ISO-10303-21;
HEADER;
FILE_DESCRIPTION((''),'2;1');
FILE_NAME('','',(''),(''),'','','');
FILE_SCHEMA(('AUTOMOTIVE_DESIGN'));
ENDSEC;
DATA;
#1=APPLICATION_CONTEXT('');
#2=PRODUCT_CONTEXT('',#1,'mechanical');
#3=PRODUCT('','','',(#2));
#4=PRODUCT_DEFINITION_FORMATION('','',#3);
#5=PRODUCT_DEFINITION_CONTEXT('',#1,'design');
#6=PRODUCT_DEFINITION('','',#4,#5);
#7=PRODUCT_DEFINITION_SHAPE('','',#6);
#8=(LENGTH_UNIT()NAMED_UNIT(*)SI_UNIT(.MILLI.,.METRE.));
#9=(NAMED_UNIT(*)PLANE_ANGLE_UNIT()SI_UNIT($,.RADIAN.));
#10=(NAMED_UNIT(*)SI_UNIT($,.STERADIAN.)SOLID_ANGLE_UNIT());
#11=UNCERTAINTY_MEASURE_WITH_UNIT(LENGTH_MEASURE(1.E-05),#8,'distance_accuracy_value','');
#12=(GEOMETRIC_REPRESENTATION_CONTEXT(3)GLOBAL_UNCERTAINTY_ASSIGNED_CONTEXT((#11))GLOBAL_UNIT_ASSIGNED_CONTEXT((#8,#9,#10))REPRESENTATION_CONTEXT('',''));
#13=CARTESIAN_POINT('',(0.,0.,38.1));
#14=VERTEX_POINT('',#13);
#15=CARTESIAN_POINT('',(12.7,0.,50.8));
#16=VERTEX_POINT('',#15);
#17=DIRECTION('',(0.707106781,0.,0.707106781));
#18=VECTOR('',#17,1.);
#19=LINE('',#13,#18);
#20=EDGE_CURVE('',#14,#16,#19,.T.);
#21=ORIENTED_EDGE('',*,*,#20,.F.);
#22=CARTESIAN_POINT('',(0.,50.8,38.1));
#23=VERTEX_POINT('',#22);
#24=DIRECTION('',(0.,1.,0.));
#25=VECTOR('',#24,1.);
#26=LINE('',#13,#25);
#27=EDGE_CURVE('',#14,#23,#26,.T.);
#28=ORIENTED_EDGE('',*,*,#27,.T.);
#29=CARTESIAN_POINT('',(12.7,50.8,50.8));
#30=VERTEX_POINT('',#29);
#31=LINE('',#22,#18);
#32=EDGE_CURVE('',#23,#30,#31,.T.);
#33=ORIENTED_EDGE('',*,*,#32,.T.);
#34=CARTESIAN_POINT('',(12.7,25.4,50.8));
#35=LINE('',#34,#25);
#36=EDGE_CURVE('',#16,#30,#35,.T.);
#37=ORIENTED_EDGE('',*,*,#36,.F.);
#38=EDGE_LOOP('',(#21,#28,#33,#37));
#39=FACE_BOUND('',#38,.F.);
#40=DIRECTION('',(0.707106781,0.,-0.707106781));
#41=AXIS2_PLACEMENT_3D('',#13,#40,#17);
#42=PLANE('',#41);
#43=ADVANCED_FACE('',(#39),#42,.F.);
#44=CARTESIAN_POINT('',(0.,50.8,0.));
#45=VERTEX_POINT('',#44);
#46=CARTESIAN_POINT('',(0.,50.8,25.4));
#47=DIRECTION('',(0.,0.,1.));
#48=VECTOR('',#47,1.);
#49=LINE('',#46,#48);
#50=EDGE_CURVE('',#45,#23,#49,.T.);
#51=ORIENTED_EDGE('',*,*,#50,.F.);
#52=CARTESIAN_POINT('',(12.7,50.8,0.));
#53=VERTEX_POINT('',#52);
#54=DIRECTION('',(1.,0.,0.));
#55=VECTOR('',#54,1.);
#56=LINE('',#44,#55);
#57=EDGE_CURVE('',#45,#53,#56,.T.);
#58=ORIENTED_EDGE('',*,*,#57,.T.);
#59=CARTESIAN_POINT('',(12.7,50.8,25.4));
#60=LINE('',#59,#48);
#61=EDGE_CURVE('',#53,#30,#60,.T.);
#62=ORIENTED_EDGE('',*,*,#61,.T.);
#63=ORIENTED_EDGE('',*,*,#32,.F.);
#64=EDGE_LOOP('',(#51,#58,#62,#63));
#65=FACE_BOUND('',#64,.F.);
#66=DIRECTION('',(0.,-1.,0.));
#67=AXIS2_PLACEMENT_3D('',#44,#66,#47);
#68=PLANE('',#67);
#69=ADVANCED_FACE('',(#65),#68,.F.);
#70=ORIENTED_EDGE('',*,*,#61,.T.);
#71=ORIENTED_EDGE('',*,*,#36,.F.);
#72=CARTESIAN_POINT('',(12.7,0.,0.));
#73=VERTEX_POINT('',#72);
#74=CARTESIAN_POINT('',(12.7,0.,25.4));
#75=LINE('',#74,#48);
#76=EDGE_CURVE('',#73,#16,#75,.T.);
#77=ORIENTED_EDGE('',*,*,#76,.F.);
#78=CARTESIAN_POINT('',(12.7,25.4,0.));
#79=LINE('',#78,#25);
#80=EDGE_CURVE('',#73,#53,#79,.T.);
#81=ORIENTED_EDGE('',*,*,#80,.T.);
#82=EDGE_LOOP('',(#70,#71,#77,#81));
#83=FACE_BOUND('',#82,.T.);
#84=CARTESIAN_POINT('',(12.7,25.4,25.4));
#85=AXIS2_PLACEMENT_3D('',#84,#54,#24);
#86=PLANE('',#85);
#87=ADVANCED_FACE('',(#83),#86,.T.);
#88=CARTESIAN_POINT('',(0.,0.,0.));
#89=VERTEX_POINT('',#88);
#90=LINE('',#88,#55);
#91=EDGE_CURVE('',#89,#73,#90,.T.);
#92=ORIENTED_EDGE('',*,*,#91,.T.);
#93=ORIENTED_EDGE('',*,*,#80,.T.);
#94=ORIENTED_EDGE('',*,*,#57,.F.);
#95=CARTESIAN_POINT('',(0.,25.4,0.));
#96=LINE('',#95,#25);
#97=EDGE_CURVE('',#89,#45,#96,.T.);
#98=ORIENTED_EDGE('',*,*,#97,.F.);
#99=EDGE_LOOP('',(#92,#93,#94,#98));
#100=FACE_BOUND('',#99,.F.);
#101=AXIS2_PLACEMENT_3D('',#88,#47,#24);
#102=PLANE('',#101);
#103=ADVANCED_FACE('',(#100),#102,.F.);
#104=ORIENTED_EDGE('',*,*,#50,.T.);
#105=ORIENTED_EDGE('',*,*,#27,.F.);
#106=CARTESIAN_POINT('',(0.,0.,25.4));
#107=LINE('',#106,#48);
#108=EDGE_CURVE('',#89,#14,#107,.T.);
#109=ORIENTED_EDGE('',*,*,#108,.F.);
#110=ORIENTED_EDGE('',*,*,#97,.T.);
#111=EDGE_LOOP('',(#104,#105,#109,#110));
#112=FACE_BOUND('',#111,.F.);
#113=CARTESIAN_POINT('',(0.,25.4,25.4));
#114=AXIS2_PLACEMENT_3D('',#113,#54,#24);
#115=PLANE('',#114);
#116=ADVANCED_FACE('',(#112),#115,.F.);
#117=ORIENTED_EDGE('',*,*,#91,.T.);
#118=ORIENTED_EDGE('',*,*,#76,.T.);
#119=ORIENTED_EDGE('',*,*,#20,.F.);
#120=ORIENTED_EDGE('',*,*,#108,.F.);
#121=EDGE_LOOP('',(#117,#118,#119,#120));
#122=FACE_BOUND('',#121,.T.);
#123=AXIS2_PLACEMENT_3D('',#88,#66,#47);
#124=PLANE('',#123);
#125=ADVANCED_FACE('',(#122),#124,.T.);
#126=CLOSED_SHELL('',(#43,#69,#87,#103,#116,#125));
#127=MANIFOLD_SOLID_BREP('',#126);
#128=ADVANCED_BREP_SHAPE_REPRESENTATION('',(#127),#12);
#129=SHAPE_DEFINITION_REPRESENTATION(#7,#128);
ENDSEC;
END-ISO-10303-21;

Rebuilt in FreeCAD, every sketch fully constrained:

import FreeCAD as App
import Part
import Sketcher
from FreeCAD import Vector
Q = App.Units.Quantity

doc = App.newDocument("Part")
body = doc.addObject("PartDesign::Body", "Body")

sketch1 = doc.addObject("Sketcher::SketchObject", "Sketch")
body.addObject(sketch1)
sketch1.AttachmentSupport = (doc.YZ_Plane, [""])
sketch1.MapMode = "FlatFace"
sketch1.addGeometry([
    Part.LineSegment(Vector(0, 51, 0), Vector(0, 0, 0)),
    Part.LineSegment(Vector(0, 0, 0), Vector(51, 0, 0)),
    Part.LineSegment(Vector(51, 0, 0), Vector(51, 51, 0)),
    Part.LineSegment(Vector(51, 51, 0), Vector(0, 51, 0)),
], False)
sketch1.addConstraint([
    Sketcher.Constraint("Coincident", 0, 2, 1, 1),
    Sketcher.Constraint("Coincident", 1, 2, 2, 1),
    Sketcher.Constraint("Coincident", 2, 2, 3, 1),
    Sketcher.Constraint("Coincident", 3, 2, 0, 1),
    Sketcher.Constraint("Vertical", 0),
    Sketcher.Constraint("Horizontal", 1),
    Sketcher.Constraint("Vertical", 2),
    Sketcher.Constraint("Horizontal", 3),
    Sketcher.Constraint("Coincident", 0, 2, -1, 1),
    Sketcher.Constraint("Equal", 3, 0),
    Sketcher.Constraint("DistanceX", 1, 1, 1, 2, Q("2 in")),
])
pad1 = doc.addObject("PartDesign::Pad", "Pad")
body.addObject(pad1)
pad1.Profile = sketch1
pad1.Length = Q("0.5 in")

sketch2 = doc.addObject("Sketcher::SketchObject", "Sketch001")
body.addObject(sketch2)
sketch2.AttachmentSupport = (doc.XZ_Plane, [""])
sketch2.MapMode = "FlatFace"
sketch2.addGeometry([
    Part.LineSegment(Vector(0, 51, 0), Vector(0, 38, 0)),
    Part.LineSegment(Vector(0, 38, 0), Vector(13, 51, 0)),
    Part.LineSegment(Vector(13, 51, 0), Vector(0, 51, 0)),
], False)
sketch2.addConstraint([
    Sketcher.Constraint("Coincident", 0, 2, 1, 1),
    Sketcher.Constraint("Coincident", 1, 2, 2, 1),
    Sketcher.Constraint("Coincident", 2, 2, 0, 1),
    Sketcher.Constraint("Vertical", 0),
    Sketcher.Constraint("Horizontal", 2),
    Sketcher.Constraint("PointOnObject", 0, 2, -2),
    Sketcher.Constraint("Equal", 2, 0),
    Sketcher.Constraint("DistanceX", 2, 2, 2, 1, Q("0.5 in")),
    Sketcher.Constraint("DistanceY", -1, 1, 1, 2, Q("2 in")),
])
pocket1 = doc.addObject("PartDesign::Pocket", "Pocket")
body.addObject(pocket1)
pocket1.Profile = sketch2
pocket1.Length = Q("2 in")

doc.recompute()
